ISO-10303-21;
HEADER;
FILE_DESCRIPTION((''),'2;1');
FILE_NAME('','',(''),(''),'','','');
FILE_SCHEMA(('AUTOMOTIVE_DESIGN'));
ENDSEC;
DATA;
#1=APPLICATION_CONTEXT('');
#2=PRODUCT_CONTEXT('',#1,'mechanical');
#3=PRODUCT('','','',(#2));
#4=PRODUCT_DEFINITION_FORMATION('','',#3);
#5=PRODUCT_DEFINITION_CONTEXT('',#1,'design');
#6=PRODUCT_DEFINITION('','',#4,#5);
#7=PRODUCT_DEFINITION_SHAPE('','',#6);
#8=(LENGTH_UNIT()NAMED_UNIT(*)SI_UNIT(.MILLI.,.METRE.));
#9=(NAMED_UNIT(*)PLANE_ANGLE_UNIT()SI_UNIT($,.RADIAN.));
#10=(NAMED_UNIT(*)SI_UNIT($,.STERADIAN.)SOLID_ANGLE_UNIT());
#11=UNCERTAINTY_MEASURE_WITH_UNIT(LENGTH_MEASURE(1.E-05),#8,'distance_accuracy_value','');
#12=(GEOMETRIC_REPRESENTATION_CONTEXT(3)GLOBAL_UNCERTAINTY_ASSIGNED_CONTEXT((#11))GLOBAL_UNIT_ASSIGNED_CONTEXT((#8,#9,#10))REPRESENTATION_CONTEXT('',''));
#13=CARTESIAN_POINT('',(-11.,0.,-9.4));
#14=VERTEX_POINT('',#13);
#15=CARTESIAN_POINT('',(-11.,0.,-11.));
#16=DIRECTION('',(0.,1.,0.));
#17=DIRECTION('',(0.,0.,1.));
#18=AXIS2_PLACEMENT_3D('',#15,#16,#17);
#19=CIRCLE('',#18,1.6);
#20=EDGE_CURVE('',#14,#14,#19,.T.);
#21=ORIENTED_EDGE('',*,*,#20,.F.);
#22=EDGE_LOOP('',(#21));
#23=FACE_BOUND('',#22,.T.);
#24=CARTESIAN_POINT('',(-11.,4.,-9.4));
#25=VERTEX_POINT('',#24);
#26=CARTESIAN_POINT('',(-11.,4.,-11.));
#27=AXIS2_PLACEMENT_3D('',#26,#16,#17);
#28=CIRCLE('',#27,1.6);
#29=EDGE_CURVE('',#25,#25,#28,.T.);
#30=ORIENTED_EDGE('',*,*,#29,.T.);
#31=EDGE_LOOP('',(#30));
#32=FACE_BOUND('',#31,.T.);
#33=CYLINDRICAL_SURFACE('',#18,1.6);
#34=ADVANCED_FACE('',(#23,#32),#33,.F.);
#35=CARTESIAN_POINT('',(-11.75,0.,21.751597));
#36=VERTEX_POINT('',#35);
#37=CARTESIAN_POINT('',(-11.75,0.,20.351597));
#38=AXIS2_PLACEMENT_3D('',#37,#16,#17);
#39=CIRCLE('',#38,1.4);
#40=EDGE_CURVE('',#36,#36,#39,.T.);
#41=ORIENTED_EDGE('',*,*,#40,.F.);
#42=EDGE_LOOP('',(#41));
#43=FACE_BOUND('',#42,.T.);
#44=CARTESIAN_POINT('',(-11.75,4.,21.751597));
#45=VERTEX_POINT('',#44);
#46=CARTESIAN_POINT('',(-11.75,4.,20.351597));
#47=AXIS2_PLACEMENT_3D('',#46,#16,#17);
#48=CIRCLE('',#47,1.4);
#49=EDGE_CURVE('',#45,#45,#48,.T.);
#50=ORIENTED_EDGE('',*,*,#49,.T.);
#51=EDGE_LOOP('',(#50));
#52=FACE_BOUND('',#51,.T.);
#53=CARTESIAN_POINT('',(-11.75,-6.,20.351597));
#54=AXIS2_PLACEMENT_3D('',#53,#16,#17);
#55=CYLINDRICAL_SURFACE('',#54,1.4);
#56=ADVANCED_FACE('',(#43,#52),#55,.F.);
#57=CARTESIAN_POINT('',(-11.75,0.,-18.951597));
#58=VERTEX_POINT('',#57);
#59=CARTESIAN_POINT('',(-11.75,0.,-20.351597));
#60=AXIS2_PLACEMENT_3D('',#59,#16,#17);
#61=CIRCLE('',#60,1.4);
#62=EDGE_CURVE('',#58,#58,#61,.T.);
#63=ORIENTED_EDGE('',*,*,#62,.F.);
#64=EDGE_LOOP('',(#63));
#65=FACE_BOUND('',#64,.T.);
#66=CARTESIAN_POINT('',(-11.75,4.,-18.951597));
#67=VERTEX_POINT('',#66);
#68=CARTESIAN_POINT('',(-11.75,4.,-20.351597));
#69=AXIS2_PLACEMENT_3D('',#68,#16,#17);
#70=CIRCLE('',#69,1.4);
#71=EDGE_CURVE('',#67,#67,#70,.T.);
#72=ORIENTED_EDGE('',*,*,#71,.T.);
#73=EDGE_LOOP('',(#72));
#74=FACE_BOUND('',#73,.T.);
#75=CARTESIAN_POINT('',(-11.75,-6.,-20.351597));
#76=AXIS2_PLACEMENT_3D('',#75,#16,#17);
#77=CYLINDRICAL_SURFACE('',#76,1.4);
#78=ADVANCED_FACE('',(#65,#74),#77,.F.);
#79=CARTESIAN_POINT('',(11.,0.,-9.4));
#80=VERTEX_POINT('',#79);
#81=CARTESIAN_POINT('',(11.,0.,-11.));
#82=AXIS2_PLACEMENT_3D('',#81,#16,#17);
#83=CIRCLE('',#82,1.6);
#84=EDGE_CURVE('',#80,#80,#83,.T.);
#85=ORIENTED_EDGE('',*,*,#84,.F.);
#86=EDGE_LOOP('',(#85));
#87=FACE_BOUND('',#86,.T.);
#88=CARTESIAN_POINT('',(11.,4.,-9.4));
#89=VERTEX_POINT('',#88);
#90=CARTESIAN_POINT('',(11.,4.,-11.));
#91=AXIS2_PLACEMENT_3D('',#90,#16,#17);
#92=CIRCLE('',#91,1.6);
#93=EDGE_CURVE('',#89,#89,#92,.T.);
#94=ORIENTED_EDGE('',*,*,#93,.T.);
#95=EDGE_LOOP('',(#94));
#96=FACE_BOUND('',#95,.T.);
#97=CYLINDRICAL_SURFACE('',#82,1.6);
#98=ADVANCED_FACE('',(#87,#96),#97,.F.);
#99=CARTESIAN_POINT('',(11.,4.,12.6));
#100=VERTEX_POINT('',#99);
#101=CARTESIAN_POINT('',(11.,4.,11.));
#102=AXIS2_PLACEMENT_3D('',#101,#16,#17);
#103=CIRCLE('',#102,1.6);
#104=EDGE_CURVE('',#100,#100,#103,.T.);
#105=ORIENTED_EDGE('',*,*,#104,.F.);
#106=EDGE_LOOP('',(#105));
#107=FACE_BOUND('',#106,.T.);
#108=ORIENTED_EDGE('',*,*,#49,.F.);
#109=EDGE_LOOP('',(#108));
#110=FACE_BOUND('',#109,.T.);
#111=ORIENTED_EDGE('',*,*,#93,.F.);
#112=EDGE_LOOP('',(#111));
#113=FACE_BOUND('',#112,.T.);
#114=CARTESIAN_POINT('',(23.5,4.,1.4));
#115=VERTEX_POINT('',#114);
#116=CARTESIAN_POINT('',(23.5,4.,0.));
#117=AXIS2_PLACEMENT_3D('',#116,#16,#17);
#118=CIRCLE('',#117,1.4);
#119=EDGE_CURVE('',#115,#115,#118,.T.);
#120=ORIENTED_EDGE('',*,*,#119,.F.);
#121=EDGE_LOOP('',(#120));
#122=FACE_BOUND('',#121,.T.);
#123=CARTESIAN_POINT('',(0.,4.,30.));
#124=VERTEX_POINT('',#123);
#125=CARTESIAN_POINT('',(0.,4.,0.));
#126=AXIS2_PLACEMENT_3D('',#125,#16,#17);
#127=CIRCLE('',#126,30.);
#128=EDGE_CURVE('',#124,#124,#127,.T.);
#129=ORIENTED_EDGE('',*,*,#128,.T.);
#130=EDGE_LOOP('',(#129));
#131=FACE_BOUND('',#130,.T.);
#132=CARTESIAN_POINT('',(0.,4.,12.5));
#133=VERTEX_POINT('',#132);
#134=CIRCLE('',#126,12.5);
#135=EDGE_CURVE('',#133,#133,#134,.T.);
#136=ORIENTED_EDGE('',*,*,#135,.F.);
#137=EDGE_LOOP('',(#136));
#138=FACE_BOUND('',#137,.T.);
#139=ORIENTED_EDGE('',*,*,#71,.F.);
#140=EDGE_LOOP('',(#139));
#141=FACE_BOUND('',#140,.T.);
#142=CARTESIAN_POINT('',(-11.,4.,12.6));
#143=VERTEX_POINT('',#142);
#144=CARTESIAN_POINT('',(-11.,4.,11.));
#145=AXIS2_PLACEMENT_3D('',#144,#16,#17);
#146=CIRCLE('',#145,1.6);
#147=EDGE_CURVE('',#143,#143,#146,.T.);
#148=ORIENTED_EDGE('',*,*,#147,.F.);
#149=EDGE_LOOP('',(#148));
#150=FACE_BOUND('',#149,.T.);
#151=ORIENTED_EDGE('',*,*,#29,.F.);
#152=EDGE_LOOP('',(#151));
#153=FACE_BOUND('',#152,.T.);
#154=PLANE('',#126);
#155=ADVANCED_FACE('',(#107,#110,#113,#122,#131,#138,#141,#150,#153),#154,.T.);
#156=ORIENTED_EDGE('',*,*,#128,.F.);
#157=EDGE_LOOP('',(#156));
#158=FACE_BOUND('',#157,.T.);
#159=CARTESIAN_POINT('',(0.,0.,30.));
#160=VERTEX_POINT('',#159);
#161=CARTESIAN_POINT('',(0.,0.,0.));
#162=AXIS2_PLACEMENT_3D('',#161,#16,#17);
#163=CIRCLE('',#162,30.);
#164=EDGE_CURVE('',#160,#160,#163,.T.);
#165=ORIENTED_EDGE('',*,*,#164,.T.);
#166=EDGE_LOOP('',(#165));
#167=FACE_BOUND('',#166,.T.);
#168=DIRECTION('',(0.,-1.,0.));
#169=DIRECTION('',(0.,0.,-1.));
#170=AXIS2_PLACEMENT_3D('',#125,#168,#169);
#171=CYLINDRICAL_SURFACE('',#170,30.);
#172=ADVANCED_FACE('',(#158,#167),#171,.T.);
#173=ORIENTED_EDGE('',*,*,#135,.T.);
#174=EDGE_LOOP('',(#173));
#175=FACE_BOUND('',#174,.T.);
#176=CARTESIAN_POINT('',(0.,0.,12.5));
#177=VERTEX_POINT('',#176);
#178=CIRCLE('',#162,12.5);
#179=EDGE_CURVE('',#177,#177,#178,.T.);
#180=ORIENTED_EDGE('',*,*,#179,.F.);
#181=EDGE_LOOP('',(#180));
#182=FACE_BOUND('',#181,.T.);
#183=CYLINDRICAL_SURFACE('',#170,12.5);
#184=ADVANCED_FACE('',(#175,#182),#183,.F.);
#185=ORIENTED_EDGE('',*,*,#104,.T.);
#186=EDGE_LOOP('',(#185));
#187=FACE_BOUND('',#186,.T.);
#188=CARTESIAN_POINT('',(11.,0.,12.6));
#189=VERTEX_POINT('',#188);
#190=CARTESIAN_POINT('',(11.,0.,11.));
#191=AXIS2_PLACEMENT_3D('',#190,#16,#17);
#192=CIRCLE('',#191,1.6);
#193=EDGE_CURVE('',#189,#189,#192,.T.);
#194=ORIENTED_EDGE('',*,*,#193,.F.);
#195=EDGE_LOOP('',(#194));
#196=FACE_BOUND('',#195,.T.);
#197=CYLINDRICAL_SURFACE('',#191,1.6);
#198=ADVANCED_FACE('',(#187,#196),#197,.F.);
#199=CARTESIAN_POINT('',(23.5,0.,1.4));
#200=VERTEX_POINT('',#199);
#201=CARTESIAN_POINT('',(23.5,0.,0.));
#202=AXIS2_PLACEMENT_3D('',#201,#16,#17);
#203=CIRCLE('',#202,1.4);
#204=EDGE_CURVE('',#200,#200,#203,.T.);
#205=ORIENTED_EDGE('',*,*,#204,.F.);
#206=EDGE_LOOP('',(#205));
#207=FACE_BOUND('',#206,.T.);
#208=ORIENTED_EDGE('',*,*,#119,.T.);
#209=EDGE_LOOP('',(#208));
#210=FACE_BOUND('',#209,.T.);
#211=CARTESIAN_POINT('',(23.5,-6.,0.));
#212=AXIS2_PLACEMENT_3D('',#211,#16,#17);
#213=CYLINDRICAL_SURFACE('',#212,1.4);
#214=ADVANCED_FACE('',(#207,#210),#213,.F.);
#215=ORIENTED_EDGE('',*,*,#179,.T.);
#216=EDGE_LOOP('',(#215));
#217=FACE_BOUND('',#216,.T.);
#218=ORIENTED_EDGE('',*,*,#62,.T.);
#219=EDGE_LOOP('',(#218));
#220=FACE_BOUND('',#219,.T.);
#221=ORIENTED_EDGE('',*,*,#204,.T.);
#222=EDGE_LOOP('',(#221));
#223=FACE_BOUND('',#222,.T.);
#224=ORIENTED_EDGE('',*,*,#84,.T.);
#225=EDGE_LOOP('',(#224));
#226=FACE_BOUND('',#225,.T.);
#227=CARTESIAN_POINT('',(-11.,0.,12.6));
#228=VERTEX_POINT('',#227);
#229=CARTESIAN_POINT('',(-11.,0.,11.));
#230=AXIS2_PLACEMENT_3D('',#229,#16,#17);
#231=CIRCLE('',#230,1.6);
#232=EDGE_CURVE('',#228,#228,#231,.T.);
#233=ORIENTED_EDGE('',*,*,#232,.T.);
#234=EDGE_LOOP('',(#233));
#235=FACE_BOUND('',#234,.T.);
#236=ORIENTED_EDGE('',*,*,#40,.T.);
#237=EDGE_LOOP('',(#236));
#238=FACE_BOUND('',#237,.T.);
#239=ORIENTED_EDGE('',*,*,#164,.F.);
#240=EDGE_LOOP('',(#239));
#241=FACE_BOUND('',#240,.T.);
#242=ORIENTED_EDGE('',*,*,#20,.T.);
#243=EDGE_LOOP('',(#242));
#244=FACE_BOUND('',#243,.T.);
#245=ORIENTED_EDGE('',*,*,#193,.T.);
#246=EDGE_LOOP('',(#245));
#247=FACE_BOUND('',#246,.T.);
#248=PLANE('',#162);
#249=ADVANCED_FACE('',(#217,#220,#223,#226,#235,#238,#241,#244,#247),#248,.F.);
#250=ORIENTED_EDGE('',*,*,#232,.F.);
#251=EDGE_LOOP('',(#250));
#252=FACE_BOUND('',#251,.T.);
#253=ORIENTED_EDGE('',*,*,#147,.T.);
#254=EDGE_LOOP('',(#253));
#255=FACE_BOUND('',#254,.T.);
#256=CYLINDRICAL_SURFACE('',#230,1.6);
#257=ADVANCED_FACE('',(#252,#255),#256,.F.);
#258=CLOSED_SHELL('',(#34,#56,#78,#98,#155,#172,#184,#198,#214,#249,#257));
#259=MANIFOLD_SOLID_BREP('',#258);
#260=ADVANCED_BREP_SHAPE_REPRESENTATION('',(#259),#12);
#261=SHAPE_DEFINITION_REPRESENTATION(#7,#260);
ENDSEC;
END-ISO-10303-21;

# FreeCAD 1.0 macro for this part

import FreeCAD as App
import Part
import Sketcher
from FreeCAD import Vector

doc = App.newDocument("Part")
params = doc.addObject("Spreadsheet::Sheet", "Params")
for row, (alias, value) in enumerate([
    ("sketch1_diameter", "60 mm"),
    ("sketch1_diameter2", "25 mm"),
    ("pad1_length", "4 mm"),
    ("sketch2_diameter", "3.2 mm"),
    ("pocket1_length", "4 mm"),
    ("sketch3_diameter", "2.8 mm"),
    ("pocket2_length", "10 mm"),
], start=1):
    params.set(f"A{row}", alias)
    params.set(f"B{row}", "=" + value)
    params.setAlias(f"B{row}", alias)

body = doc.addObject("PartDesign::Body", "Body")

# Sketch on XZ plane
sketch1 = doc.addObject("Sketcher::SketchObject", "Sketch")
body.addObject(sketch1)
sketch1.AttachmentSupport = (doc.XZ_Plane, [""])
sketch1.MapMode = "FlatFace"
sketch1.addGeometry([
    Part.Circle(Vector(0, 0, 0), Vector(0, 0, 1), 30),
    Part.Circle(Vector(0, 0, 0), Vector(0, 0, 1), 12),
], False)
sketch1.addConstraint([
    Sketcher.Constraint("Coincident", 0, 3, -1, 1),
    Sketcher.Constraint("Coincident", 1, 3, -1, 1),
    Sketcher.Constraint("Diameter", 0, 60.0),
    Sketcher.Constraint("Diameter", 1, 25.0),
])
sketch1.setExpression("Constraints[2]", "Params.sketch1_diameter")
sketch1.setExpression("Constraints[3]", "Params.sketch1_diameter2")
pad1 = doc.addObject("PartDesign::Pad", "Pad")
body.addObject(pad1)
pad1.Profile = sketch1
pad1.setExpression("Length", "Params.pad1_length")
pad1.Reversed = True

# Sketch on XZ plane
sketch2 = doc.addObject("Sketcher::SketchObject", "Sketch001")
body.addObject(sketch2)
sketch2.AttachmentSupport = (doc.XZ_Plane, [""])
sketch2.MapMode = "FlatFace"
sketch2.AttachmentOffset = App.Placement(Vector(0, 0, -4), App.Rotation())
sketch2.addGeometry([
    Part.Circle(Vector(11, -11, 0), Vector(0, 0, 1), 1.6),
    Part.Circle(Vector(11, 11, 0), Vector(0, 0, 1), 1.6),
    Part.Circle(Vector(-11, 11, 0), Vector(0, 0, 1), 1.6),
    Part.Circle(Vector(-11, -11, 0), Vector(0, 0, 1), 1.6),
], False)
sketch2.addConstraint([
    Sketcher.Constraint("Equal", 0, 1),
    Sketcher.Constraint("Equal", 1, 2),
    Sketcher.Constraint("Equal", 2, 3),
    Sketcher.Constraint("Symmetric", 0, 3, 2, 3, -1, 1),
    Sketcher.Constraint("Symmetric", 1, 3, 3, 3, -1, 1),
    Sketcher.Constraint("Symmetric", 1, 3, 2, 3, -2),
    Sketcher.Constraint("Diameter", 0, 3.2),
    Sketcher.Constraint("DistanceX", -1, 1, 0, 3, 11.0),
    Sketcher.Constraint("DistanceY", 0, 3, -1, 1, 11.0),
])
sketch2.setExpression("Constraints[6]", "Params.sketch2_diameter")
pocket1 = doc.addObject("PartDesign::Pocket", "Pocket")
body.addObject(pocket1)
pocket1.Profile = sketch2
pocket1.setExpression("Length", "Params.pocket1_length")
pocket1.Reversed = True

# Sketch on XZ plane
sketch3 = doc.addObject("Sketcher::SketchObject", "Sketch002")
body.addObject(sketch3)
sketch3.AttachmentSupport = (doc.XZ_Plane, [""])
sketch3.MapMode = "FlatFace"
sketch3.AttachmentOffset = App.Placement(Vector(0, 0, -4), App.Rotation())
sketch3.addGeometry([
    Part.Circle(Vector(23.5, 0, 0), Vector(0, 0, 1), 1.4),
    Part.Circle(Vector(-11.8, -20.4, 0), Vector(0, 0, 1), 1.4),
    Part.Circle(Vector(-11.8, 20.4, 0), Vector(0, 0, 1), 1.4),
], False)
sketch3.addConstraint([
    Sketcher.Constraint("Equal", 0, 1),
    Sketcher.Constraint("Equal", 1, 2),
    Sketcher.Constraint("Symmetric", 1, 3, 2, 3, -1),
    Sketcher.Constraint("PointOnObject", 0, 3, -1),
    Sketcher.Constraint("Diameter", 0, 2.8),
    Sketcher.Constraint("DistanceX", -1, 1, 0, 3, 23.5),
    Sketcher.Constraint("DistanceX", 1, 3, -1, 1, 11.75),
    Sketcher.Constraint("DistanceY", 1, 3, -1, 1, 20.351597),
])
sketch3.setExpression("Constraints[4]", "Params.sketch3_diameter")
pocket2 = doc.addObject("PartDesign::Pocket", "Pocket001")
body.addObject(pocket2)
pocket2.Profile = sketch3
pocket2.setExpression("Length", "Params.pocket2_length")
pocket2.Reversed = True

doc.recompute()
